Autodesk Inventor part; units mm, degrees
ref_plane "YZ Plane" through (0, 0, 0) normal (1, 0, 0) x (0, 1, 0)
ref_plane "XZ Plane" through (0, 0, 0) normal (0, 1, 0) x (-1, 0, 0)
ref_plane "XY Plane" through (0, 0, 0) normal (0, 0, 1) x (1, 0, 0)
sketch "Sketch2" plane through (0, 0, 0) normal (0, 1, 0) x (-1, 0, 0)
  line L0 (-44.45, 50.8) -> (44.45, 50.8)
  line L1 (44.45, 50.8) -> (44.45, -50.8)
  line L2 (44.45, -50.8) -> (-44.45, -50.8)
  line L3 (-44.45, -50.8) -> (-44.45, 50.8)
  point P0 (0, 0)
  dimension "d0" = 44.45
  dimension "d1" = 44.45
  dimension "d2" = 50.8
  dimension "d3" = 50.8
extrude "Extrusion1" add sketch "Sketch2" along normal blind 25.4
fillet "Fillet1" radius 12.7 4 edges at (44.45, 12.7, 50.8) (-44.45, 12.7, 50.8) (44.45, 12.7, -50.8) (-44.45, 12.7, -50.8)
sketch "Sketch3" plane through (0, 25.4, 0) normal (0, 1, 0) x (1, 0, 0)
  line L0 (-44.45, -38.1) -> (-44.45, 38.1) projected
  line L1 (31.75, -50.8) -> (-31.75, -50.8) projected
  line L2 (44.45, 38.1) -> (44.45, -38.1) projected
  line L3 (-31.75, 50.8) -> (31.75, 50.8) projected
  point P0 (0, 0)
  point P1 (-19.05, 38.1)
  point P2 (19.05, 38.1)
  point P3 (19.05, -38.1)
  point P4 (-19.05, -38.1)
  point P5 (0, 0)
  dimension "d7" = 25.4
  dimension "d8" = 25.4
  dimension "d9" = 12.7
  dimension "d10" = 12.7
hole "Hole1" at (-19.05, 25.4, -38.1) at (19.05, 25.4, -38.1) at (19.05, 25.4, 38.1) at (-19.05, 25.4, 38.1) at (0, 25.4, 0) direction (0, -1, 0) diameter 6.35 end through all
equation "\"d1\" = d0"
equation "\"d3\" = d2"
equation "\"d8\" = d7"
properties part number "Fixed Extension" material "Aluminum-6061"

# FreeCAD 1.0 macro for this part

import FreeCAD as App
import Part
import Sketcher
Q = App.Units.Quantity


def edges_at(feature, points):
    """Names of the edges that pass closest to the given points."""
    edges = feature.Shape.Edges
    near = lambda p: min(range(len(edges)), key=lambda i: edges[i].distToShape(Part.Vertex(*p))[0])
    return sorted({f"Edge{near(p) + 1}" for p in points})

doc = App.newDocument("Part")
params = doc.addObject("Spreadsheet::Sheet", "Params")
for row, (alias, value) in enumerate([
    ("pad1_length", "1 in"),
    ("fillet_radius", "0.5 in"),
    ("sketch2_diameter", "0.25 in"),
    ("hole_diameter", "0.25 in"),
], start=1):
    params.set(f"A{row}", alias)
    params.set(f"B{row}", "=" + value)
    params.setAlias(f"B{row}", alias)

body = doc.addObject("PartDesign::Body", "Body")

sketch1 = body.newObject("Sketcher::SketchObject", "Sketch")
sketch1.AttachmentSupport = (doc.getObject("XZ_Plane"), [""])
sketch1.MapMode = "FlatFace"
sketch1.addGeometry(Part.LineSegment(App.Vector(-44, 51, 0), App.Vector(44, 51, 0)), False)
sketch1.addGeometry(Part.LineSegment(App.Vector(44, 51, 0), App.Vector(44, -51, 0)), False)
sketch1.addGeometry(Part.LineSegment(App.Vector(44, -51, 0), App.Vector(-44, -51, 0)), False)
sketch1.addGeometry(Part.LineSegment(App.Vector(-44, -51, 0), App.Vector(-44, 51, 0)), False)
sketch1.addConstraint(Sketcher.Constraint("Coincident", 0, 2, 1, 1))
sketch1.addConstraint(Sketcher.Constraint("Coincident", 1, 2, 2, 1))
sketch1.addConstraint(Sketcher.Constraint("Coincident", 2, 2, 3, 1))
sketch1.addConstraint(Sketcher.Constraint("Coincident", 3, 2, 0, 1))
sketch1.addConstraint(Sketcher.Constraint("Horizontal", 0))
sketch1.addConstraint(Sketcher.Constraint("Vertical", 1))
sketch1.addConstraint(Sketcher.Constraint("Horizontal", 2))
sketch1.addConstraint(Sketcher.Constraint("Vertical", 3))
sketch1.addConstraint(Sketcher.Constraint("Symmetric", 0, 2, 2, 2, -1, 1))
sketch1.addConstraint(Sketcher.Constraint("DistanceY", -1, 1, 0, 2, Q("2 in")))
sketch1.addConstraint(Sketcher.Constraint("DistanceX", -1, 1, 0, 2, Q("1.75 in")))
pad1 = body.newObject("PartDesign::Pad", "Pad")
pad1.Profile = sketch1
pad1.setExpression("Length", "Params.pad1_length")
pad1.Reversed = True
doc.recompute()

fillet = body.newObject("PartDesign::Fillet", "Fillet")
fillet.Base = (pad1, edges_at(pad1, [
    (44.45, 12.7, 50.8),
    (-44.45, 12.7, 50.8),
    (44.45, 12.7, -50.8),
    (-44.45, 12.7, -50.8),
]))
fillet.setExpression("Radius", "Params.fillet_radius")

sketch2 = body.newObject("Sketcher::SketchObject", "Sketch001")
sketch2.AttachmentSupport = (doc.getObject("XZ_Plane"), [""])
sketch2.MapMode = "FlatFace"
sketch2.AttachmentOffset = App.Placement(App.Vector(0, 0, -1 * 25.4), App.Rotation())
sketch2.addGeometry(Part.Circle(App.Vector(-19.1, -38.1, 0), App.Vector(0, 0, 1), 3.2), False)
sketch2.addGeometry(Part.Circle(App.Vector(19.1, -38.1, 0), App.Vector(0, 0, 1), 3.2), False)
sketch2.addGeometry(Part.Circle(App.Vector(19.1, 38.1, 0), App.Vector(0, 0, 1), 3.2), False)
sketch2.addGeometry(Part.Circle(App.Vector(-19.1, 38.1, 0), App.Vector(0, 0, 1), 3.2), False)
sketch2.addGeometry(Part.Circle(App.Vector(0, 0, 0), App.Vector(0, 0, 1), 3.2), False)
sketch2.addConstraint(Sketcher.Constraint("Coincident", 4, 3, -1, 1))
sketch2.addConstraint(Sketcher.Constraint("Equal", 0, 1))
sketch2.addConstraint(Sketcher.Constraint("Equal", 1, 2))
sketch2.addConstraint(Sketcher.Constraint("Equal", 2, 3))
sketch2.addConstraint(Sketcher.Constraint("Equal", 3, 4))
sketch2.addConstraint(Sketcher.Constraint("Symmetric", 0, 3, 2, 3, -1, 1))
sketch2.addConstraint(Sketcher.Constraint("Symmetric", 1, 3, 3, 3, -1, 1))
sketch2.addConstraint(Sketcher.Constraint("Symmetric", 0, 3, 1, 3, -2))
sketch2.addConstraint(Sketcher.Constraint("Diameter", 0, Q("0.25 in")))
sketch2.addConstraint(Sketcher.Constraint("DistanceY", 1, 3, 2, 3, Q("3 in")))
sketch2.addConstraint(Sketcher.Constraint("DistanceX", 0, 3, 1, 3, Q("1.5 in")))
sketch2.setExpression("Constraints[8]", "Params.sketch2_diameter")
doc.recompute()
hole = body.newObject("PartDesign::Hole", "Hole")
hole.Profile = sketch2
hole.ThreadType = "None"
hole.setExpression("Diameter", "Params.hole_diameter")
hole.DepthType = "ThroughAll"
hole.Reversed = True

doc.recompute()
